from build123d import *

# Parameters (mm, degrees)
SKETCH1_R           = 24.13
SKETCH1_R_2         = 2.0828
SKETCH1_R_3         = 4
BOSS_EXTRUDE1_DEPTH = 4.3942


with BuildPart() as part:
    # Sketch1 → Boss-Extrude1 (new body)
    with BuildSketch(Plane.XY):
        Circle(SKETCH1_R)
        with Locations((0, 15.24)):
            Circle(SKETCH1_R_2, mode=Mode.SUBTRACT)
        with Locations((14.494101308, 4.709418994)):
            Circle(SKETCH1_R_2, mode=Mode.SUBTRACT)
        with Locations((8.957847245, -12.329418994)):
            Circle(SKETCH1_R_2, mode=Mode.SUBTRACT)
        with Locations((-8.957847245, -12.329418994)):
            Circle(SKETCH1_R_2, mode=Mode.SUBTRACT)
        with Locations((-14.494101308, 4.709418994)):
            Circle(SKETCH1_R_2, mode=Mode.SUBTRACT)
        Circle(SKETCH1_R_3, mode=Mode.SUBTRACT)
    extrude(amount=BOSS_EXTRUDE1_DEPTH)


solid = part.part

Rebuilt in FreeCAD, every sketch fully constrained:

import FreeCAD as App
import Part
import Sketcher
from FreeCAD import Vector
Q = App.Units.Quantity

doc = App.newDocument("Part")
body = doc.addObject("PartDesign::Body", "Body")

# Sketch on XY plane
sketch1 = body.newObject("Sketcher::SketchObject", "Sketch")
sketch1.AttachmentSupport = (doc.getObject("XY_Plane"), [""])
sketch1.MapMode = "FlatFace"
sketch1.addGeometry([
    Part.Circle(Vector(0, 0, 0), Vector(0, 0, 1), 24.1),  # 0
    Part.Circle(Vector(-9, -12.3, 0), Vector(0, 0, 1), 2.1),  # 1
    Part.Circle(Vector(9, -12.3, 0), Vector(0, 0, 1), 2.1),  # 2
    Part.Circle(Vector(0, 0, 0), Vector(0, 0, 1), 4),  # 3
    Part.Circle(Vector(-14.5, 4.7, 0), Vector(0, 0, 1), 2.1),  # 4
    Part.Circle(Vector(14.5, 4.7, 0), Vector(0, 0, 1), 2.1),  # 5
    Part.Circle(Vector(0, 15.2, 0), Vector(0, 0, 1), 2.1),  # 6
], False)
sketch1.addConstraint([
    Sketcher.Constraint("Coincident", 0, 3, -1, 1),
    Sketcher.Constraint("Coincident", 3, 3, -1, 1),
    Sketcher.Constraint("Equal", 1, 2),
    Sketcher.Constraint("Equal", 2, 4),
    Sketcher.Constraint("Equal", 4, 5),
    Sketcher.Constraint("Equal", 5, 6),
    Sketcher.Constraint("Symmetric", 1, 3, 2, 3, -2),
    Sketcher.Constraint("Symmetric", 4, 3, 5, 3, -2),
    Sketcher.Constraint("PointOnObject", 6, 3, -2),
    Sketcher.Constraint("Diameter", 0, Q("1.9 in")),
    Sketcher.Constraint("Diameter", 1, Q("0.164 in")),
    Sketcher.Constraint("DistanceY", -1, 1, 6, 3, Q("0.6 in")),
    Sketcher.Constraint("Diameter", 3, 8.0),
    Sketcher.Constraint("DistanceX", 4, 3, -1, 1, 14.494101),
    Sketcher.Constraint("DistanceY", 1, 3, -1, 1, 12.329419),
    Sketcher.Constraint("DistanceY", -1, 1, 4, 3, 4.709419),
    Sketcher.Constraint("DistanceX", 4, 3, 2, 3, 23.451949),
])
pad1 = body.newObject("PartDesign::Pad", "Pad")
pad1.Profile = sketch1
pad1.Length = Q("0.173 in")

doc.recompute()
